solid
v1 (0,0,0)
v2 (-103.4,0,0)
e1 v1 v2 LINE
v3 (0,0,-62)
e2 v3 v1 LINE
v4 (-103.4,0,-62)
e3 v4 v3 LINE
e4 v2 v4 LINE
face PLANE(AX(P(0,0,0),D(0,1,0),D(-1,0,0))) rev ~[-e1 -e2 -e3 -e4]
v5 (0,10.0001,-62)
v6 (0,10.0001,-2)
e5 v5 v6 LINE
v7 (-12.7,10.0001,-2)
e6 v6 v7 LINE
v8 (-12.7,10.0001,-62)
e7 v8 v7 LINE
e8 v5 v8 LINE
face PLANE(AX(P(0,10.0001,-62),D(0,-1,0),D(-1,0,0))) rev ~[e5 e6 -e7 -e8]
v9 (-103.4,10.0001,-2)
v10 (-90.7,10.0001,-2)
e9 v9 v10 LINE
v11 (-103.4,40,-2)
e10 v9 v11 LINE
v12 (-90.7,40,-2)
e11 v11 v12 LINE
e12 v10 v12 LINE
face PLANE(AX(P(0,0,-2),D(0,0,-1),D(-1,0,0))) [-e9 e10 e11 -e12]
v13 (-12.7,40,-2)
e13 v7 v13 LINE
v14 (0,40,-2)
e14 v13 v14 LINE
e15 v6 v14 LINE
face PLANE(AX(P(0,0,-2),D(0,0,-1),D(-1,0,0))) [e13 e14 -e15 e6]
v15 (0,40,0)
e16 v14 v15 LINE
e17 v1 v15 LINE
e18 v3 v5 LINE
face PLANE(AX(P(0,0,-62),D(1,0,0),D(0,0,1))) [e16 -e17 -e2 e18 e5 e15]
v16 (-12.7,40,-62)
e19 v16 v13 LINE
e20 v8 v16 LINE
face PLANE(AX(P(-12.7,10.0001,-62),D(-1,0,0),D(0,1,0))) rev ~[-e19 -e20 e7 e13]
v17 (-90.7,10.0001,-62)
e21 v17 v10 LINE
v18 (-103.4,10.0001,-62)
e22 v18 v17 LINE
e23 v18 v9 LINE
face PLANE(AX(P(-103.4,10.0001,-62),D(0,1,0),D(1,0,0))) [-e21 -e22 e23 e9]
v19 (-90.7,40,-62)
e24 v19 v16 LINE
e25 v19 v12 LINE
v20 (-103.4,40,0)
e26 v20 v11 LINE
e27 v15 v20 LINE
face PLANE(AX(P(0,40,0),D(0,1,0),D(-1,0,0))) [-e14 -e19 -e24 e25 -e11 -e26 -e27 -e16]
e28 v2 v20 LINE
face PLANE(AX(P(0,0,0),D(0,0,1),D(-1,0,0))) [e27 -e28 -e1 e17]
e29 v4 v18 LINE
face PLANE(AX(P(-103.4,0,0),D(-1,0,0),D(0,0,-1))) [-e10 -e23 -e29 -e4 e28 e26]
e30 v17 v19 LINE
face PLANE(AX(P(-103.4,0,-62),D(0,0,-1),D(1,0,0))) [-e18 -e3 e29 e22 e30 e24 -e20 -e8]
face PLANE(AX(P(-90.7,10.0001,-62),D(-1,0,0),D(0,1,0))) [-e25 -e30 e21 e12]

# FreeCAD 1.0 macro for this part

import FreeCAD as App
import Part
import Sketcher

V = App.Vector


def add_polygon(sketch, points):
    """Adds a closed chain of lines whose ends are joined by coincident constraints."""
    first, n = sketch.GeometryCount, len(points)
    for a, b in zip(points, points[1:] + points[:1]):
        sketch.addGeometry(Part.LineSegment(App.Vector(*a, 0), App.Vector(*b, 0)), False)
    for i in range(n):
        sketch.addConstraint(Sketcher.Constraint("Coincident", first + i, 2, first + (i + 1) % n, 1))

doc = App.newDocument("Part")
params = doc.addObject("Spreadsheet::Sheet", "Params")
for row, (alias, value) in enumerate([
    ("sketch1_height", "62 mm"),
    ("sketch1_width", "103.4 mm"),
    ("pad1_length", "40 mm"),
    ("sketch2_height", "30 mm"),
    ("sketch2_width", "12.7 mm"),
    ("pocket1_length", "60 mm"),
], start=1):
    params.set(f"A{row}", alias)
    params.set(f"B{row}", "=" + value)
    params.setAlias(f"B{row}", alias)

body = doc.addObject("PartDesign::Body", "Body")

# Sketch on XZ plane
sketch1 = body.newObject("Sketcher::SketchObject", "Sketch")
sketch1.AttachmentSupport = (doc.getObject("XZ_Plane"), [""])
sketch1.MapMode = "FlatFace"
add_polygon(sketch1, [(-103.4, 0), (0, 0), (0, -62), (-103.4, -62)])  # lines 0-3
sketch1.addConstraint([
    Sketcher.Constraint("Horizontal", 0),
    Sketcher.Constraint("Vertical", 1),
    Sketcher.Constraint("Horizontal", 2),
    Sketcher.Constraint("Vertical", 3),
    Sketcher.Constraint("Coincident", 0, 2, -1, 1),
    Sketcher.Constraint("DistanceY", 1, 2, 1, 1, 62.0),
    Sketcher.Constraint("DistanceX", 0, 1, 0, 2, 103.4),
])
sketch1.setExpression("Constraints[9]", "Params.sketch1_height")
sketch1.setExpression("Constraints[10]", "Params.sketch1_width")
pad1 = body.newObject("PartDesign::Pad", "Pad")
pad1.Profile = sketch1
pad1.setExpression("Length", "Params.pad1_length")
pad1.Reversed = True

# Sketch on XY plane
sketch2 = body.newObject("Sketcher::SketchObject", "Sketch001")
sketch2.AttachmentSupport = (doc.getObject("XY_Plane"), [""])
sketch2.MapMode = "FlatFace"
sketch2.AttachmentOffset = App.Placement(V(0, 0, -62), App.Rotation())
add_polygon(sketch2, [(-103.4, 10.0001), (-103.4, 40), (-90.7, 40), (-90.7, 10.0001)])  # lines 0-3
add_polygon(sketch2, [(-12.7, 10.0001), (-12.7, 40), (0, 40), (0, 10.0001)])  # lines 4-7
sketch2.addConstraint([
    Sketcher.Constraint("Vertical", 0),
    Sketcher.Constraint("Horizontal", 1),
    Sketcher.Constraint("Vertical", 2),
    Sketcher.Constraint("Horizontal", 3),
    Sketcher.Constraint("Vertical", 4),
    Sketcher.Constraint("Horizontal", 5),
    Sketcher.Constraint("Vertical", 6),
    Sketcher.Constraint("Horizontal", 7),
    Sketcher.Constraint("PointOnObject", 5, 2, -2),
    Sketcher.Constraint("Horizontal", 1, 2, 4, 2),
    Sketcher.Constraint("Horizontal", 3, 2, 6, 2),
    Sketcher.Constraint("Equal", 3, 5),
    Sketcher.Constraint("DistanceY", 0, 1, 0, 2, 30.0),
    Sketcher.Constraint("DistanceX", 1, 1, 1, 2, 12.7),
    Sketcher.Constraint("DistanceY", -1, 1, 0, 2, 40.0),
    Sketcher.Constraint("DistanceX", 1, 2, 4, 2, 78.0),
])
sketch2.setExpression("Constraints[20]", "Params.sketch2_height")
sketch2.setExpression("Constraints[21]", "Params.sketch2_width")
pocket1 = body.newObject("PartDesign::Pocket", "Pocket")
pocket1.Profile = sketch2
pocket1.setExpression("Length", "Params.pocket1_length")
pocket1.Reversed = True

doc.recompute()
